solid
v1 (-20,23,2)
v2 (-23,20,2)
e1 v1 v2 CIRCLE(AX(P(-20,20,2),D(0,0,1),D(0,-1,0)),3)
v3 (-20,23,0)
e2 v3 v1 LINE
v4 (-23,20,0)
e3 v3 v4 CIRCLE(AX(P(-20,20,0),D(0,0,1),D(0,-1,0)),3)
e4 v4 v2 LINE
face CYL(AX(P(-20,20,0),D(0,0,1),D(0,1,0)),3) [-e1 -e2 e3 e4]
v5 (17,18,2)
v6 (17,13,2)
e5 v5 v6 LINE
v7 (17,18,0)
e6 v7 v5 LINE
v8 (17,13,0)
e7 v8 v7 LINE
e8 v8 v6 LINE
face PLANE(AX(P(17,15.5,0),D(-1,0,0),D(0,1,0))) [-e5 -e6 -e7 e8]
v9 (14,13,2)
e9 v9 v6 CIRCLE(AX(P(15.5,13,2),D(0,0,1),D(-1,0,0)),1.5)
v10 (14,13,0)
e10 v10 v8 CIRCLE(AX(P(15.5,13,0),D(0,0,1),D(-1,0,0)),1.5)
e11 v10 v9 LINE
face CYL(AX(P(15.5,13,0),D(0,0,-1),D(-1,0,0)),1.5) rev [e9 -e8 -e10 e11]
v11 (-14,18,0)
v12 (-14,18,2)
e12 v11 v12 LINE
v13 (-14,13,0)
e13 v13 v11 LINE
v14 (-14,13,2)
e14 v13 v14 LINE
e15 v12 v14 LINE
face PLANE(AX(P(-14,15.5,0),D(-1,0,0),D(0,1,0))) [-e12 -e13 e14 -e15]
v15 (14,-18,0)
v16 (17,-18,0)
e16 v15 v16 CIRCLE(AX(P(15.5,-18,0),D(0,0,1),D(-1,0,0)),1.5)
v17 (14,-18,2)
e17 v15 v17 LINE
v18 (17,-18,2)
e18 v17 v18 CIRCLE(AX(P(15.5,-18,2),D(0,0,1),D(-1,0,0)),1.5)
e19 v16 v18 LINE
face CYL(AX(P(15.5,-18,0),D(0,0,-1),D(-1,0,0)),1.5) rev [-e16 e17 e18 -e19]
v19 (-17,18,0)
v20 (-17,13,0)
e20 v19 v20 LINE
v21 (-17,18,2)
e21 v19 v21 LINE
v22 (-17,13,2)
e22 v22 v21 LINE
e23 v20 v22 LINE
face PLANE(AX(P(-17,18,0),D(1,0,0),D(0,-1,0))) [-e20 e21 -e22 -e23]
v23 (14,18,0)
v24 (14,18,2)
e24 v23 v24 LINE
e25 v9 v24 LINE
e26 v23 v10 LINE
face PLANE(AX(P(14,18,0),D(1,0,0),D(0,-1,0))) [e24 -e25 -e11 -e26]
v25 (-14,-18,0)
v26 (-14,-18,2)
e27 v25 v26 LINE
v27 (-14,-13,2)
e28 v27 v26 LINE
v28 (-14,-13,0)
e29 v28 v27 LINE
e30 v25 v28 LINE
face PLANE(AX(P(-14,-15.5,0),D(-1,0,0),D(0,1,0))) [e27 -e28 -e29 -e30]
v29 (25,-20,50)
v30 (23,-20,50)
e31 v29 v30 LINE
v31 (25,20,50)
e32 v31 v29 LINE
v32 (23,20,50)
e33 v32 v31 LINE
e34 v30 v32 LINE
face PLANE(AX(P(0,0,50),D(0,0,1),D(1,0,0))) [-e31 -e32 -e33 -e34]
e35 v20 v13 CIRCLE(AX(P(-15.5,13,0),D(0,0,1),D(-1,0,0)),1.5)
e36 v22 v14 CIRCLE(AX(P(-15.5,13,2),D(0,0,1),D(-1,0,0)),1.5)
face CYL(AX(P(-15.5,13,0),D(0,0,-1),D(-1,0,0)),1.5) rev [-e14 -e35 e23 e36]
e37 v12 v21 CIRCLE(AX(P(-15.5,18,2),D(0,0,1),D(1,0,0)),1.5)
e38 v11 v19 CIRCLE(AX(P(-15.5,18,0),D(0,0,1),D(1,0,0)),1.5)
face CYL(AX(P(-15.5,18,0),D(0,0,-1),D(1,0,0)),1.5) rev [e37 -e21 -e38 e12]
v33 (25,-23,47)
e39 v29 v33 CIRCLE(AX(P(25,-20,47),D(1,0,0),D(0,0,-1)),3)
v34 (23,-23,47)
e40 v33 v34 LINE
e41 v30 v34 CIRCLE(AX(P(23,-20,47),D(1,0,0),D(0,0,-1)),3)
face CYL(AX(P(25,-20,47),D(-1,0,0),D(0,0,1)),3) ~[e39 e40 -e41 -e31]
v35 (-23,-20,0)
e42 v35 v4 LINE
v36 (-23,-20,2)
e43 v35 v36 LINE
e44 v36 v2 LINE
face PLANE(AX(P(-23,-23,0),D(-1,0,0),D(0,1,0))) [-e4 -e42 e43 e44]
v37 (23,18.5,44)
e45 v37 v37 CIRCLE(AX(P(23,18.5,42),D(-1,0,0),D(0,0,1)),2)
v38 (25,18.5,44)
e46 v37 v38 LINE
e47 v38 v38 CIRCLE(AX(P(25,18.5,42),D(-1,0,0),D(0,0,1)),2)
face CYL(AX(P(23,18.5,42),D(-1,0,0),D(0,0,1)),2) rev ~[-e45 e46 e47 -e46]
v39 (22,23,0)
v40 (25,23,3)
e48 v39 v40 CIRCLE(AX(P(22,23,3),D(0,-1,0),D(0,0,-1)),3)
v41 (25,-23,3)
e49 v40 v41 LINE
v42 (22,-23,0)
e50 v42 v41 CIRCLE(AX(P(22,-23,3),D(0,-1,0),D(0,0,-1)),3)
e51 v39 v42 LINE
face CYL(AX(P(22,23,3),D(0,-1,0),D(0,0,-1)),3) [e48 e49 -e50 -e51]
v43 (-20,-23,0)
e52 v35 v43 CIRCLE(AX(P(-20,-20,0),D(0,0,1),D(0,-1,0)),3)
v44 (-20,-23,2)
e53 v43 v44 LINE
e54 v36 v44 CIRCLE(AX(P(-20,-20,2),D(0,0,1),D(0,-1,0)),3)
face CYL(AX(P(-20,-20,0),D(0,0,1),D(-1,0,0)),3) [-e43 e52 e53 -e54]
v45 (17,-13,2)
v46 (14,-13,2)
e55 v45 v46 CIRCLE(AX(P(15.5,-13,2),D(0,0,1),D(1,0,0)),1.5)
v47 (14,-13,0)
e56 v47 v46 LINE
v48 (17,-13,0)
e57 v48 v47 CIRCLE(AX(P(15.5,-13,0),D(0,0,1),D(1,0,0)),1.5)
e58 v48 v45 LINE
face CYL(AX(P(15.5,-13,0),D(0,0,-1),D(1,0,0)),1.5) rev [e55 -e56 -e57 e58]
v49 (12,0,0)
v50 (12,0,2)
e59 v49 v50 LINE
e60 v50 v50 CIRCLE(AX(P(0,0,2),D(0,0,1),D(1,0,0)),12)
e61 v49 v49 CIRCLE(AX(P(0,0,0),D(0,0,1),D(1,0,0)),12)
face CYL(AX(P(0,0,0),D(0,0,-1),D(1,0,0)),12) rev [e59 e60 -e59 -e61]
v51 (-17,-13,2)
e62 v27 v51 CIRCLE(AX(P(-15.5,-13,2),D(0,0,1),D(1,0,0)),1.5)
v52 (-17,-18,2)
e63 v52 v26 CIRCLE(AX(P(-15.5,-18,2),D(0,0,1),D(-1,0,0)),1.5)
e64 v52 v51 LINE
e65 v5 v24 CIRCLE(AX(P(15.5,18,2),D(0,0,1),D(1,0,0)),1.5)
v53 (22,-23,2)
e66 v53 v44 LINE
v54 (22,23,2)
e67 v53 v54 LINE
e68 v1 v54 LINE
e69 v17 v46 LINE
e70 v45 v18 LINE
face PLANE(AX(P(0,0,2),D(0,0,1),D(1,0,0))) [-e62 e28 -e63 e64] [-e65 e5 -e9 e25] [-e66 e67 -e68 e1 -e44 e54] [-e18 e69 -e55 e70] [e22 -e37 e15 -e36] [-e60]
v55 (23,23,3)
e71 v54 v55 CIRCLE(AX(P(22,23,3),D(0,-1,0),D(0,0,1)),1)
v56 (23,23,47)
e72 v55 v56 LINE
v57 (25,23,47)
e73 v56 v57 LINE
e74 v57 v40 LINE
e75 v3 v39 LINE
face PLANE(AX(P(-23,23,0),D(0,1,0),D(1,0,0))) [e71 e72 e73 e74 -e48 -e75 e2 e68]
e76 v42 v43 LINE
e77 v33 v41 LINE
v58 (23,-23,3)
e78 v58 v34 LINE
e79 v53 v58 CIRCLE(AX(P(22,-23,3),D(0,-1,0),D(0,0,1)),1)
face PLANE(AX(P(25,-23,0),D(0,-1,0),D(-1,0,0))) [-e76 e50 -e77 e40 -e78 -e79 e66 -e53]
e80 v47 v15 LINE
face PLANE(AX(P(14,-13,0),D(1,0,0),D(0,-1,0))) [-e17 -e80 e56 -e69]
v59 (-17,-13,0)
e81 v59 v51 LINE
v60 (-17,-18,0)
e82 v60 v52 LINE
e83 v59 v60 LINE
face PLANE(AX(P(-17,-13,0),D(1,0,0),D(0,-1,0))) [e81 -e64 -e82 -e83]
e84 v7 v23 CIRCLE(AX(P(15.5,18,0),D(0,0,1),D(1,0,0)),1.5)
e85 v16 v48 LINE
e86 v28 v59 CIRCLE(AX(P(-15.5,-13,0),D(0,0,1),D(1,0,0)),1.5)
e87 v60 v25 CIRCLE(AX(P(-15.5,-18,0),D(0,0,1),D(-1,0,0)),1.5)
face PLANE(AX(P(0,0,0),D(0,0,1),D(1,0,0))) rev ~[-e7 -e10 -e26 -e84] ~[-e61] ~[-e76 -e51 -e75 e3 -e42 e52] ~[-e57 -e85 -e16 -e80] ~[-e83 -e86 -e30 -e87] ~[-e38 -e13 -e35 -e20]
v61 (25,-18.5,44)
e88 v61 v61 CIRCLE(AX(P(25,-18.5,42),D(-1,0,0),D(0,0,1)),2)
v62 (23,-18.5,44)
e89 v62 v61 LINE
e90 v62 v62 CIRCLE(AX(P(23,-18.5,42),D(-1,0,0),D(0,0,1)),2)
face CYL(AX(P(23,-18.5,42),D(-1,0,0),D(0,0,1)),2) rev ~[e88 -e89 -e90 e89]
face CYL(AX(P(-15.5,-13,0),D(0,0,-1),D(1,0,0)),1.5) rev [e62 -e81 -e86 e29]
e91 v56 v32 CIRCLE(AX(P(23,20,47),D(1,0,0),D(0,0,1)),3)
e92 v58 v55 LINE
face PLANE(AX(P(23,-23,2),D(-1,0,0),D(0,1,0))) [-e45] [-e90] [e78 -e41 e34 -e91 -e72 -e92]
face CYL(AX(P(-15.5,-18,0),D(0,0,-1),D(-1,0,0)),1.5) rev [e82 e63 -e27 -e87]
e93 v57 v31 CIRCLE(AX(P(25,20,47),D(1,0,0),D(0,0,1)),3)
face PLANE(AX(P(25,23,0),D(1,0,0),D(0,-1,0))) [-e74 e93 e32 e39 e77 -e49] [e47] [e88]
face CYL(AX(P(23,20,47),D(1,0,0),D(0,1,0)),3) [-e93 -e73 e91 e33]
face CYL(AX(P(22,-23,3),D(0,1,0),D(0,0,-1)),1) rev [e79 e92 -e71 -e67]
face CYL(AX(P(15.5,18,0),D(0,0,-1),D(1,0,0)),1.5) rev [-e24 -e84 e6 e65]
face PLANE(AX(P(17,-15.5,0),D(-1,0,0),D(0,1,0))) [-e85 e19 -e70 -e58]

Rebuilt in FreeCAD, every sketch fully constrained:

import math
import FreeCAD as App
import Part
import Sketcher

V = App.Vector
Q = App.Units.Quantity


def edges_at(feature, points):
    """Names of the edges that pass closest to the given points."""
    edges = feature.Shape.Edges
    near = lambda p: min(range(len(edges)), key=lambda i: edges[i].distToShape(Part.Vertex(*p))[0])
    return sorted({f"Edge{near(p) + 1}" for p in points})


def add_polygon(sketch, points):
    """Adds a closed chain of lines whose ends are joined by coincident constraints."""
    first, n = sketch.GeometryCount, len(points)
    for a, b in zip(points, points[1:] + points[:1]):
        sketch.addGeometry(Part.LineSegment(App.Vector(*a, 0), App.Vector(*b, 0)), False)
    for i in range(n):
        sketch.addConstraint(Sketcher.Constraint("Coincident", first + i, 2, first + (i + 1) % n, 1))

doc = App.newDocument("Part")
body = doc.addObject("PartDesign::Body", "Body")

sketch1 = doc.addObject("Sketcher::SketchObject", "Sketch")
body.addObject(sketch1)
sketch1.AttachmentSupport = (doc.XY_Plane, [""])
sketch1.MapMode = "FlatFace"
add_polygon(sketch1, [(25, 23), (-23, 23), (-23, -23), (25, -23)])
sketch1.addGeometry(Part.LineSegment(V(-14, -13, 0), V(-14, -18, 0)), False)
sketch1.addGeometry(Part.ArcOfCircle(Part.Circle(V(-15.5, -18, 0), V(0, 0, 1), 1.5), math.radians(180), math.radians(360)), False)
sketch1.addGeometry(Part.LineSegment(V(-17, -18, 0), V(-17, -13, 0)), False)
sketch1.addGeometry(Part.ArcOfCircle(Part.Circle(V(-15.5, -13, 0), V(0, 0, 1), 1.5), math.radians(0), math.radians(180)), False)
sketch1.addGeometry(Part.LineSegment(V(17, -13, 0), V(17, -18, 0)), False)
sketch1.addGeometry(Part.ArcOfCircle(Part.Circle(V(15.5, -18, 0), V(0, 0, 1), 1.5), math.radians(180), math.radians(360)), False)
sketch1.addGeometry(Part.LineSegment(V(14, -18, 0), V(14, -13, 0)), False)
sketch1.addGeometry(Part.ArcOfCircle(Part.Circle(V(15.5, -13, 0), V(0, 0, 1), 1.5), math.radians(0), math.radians(180)), False)
sketch1.addGeometry(Part.Circle(V(0, 0, 0), V(0, 0, 1), 12), False)
sketch1.addGeometry(Part.LineSegment(V(-14, 18, 0), V(-14, 13, 0)), False)
sketch1.addGeometry(Part.ArcOfCircle(Part.Circle(V(-15.5, 13, 0), V(0, 0, 1), 1.5), math.radians(180), math.radians(360)), False)
sketch1.addGeometry(Part.LineSegment(V(-17, 13, 0), V(-17, 18, 0)), False)
sketch1.addGeometry(Part.ArcOfCircle(Part.Circle(V(-15.5, 18, 0), V(0, 0, 1), 1.5), math.radians(0), math.radians(180)), False)
sketch1.addGeometry(Part.LineSegment(V(17, 18, 0), V(17, 13, 0)), False)
sketch1.addGeometry(Part.ArcOfCircle(Part.Circle(V(15.5, 13, 0), V(0, 0, 1), 1.5), math.radians(180), math.radians(360)), False)
sketch1.addGeometry(Part.LineSegment(V(14, 13, 0), V(14, 18, 0)), False)
sketch1.addGeometry(Part.ArcOfCircle(Part.Circle(V(15.5, 18, 0), V(0, 0, 1), 1.5), math.radians(0), math.radians(180)), False)
sketch1.addConstraint([
    Sketcher.Constraint("Tangent", 4, 2, 5, 2),
    Sketcher.Constraint("Tangent", 5, 1, 6, 1),
    Sketcher.Constraint("Tangent", 6, 2, 7, 2),
    Sketcher.Constraint("Tangent", 7, 1, 4, 1),
    Sketcher.Constraint("Tangent", 8, 2, 9, 2),
    Sketcher.Constraint("Tangent", 9, 1, 10, 1),
    Sketcher.Constraint("Tangent", 10, 2, 11, 2),
    Sketcher.Constraint("Tangent", 11, 1, 8, 1),
    Sketcher.Constraint("Tangent", 13, 2, 14, 2),
    Sketcher.Constraint("Tangent", 14, 1, 15, 1),
    Sketcher.Constraint("Tangent", 15, 2, 16, 2),
    Sketcher.Constraint("Tangent", 16, 1, 13, 1),
    Sketcher.Constraint("Tangent", 17, 2, 18, 2),
    Sketcher.Constraint("Tangent", 18, 1, 19, 1),
    Sketcher.Constraint("Tangent", 19, 2, 20, 2),
    Sketcher.Constraint("Tangent", 20, 1, 17, 1),
    Sketcher.Constraint("Horizontal", 0),
    Sketcher.Constraint("Vertical", 1),
    Sketcher.Constraint("Horizontal", 2),
    Sketcher.Constraint("Vertical", 3),
    Sketcher.Constraint("Vertical", 4),
    Sketcher.Constraint("Vertical", 6),
    Sketcher.Constraint("Vertical", 8),
    Sketcher.Constraint("Vertical", 10),
    Sketcher.Constraint("Vertical", 13),
    Sketcher.Constraint("Vertical", 15),
    Sketcher.Constraint("Vertical", 17),
    Sketcher.Constraint("Vertical", 19),
    Sketcher.Constraint("Coincident", 12, 3, -1, 1),
    Sketcher.Constraint("Equal", 7, 9),
    Sketcher.Constraint("Equal", 11, 14),
    Sketcher.Constraint("Equal", 16, 18),
    Sketcher.Constraint("Symmetric", 11, 3, 14, 3, -1, 1),
    Sketcher.Constraint("Symmetric", 7, 3, 18, 3, -1, 1),
    Sketcher.Constraint("Symmetric", 5, 3, 9, 3, -2),
    Sketcher.Constraint("Horizontal", 7, 3, 11, 3),
    Sketcher.Constraint("Horizontal", 16, 3, 20, 3),
    Sketcher.Constraint("Equal", 10, 13),
    Sketcher.Constraint("Diameter", 12, Q("24 mm")),
    Sketcher.Constraint("Radius", 5, Q("1.5 mm")),
    Sketcher.Constraint("DistanceX", 0, 2, 0, 1, Q("48 mm")),
    Sketcher.Constraint("DistanceY", 1, 2, 1, 1, Q("46 mm")),
    Sketcher.Constraint("DistanceX", 0, 2, -1, 1, Q("23 mm")),
    Sketcher.Constraint("DistanceY", -1, 1, 0, 2, Q("23 mm")),
    Sketcher.Constraint("DistanceX", 5, 3, 9, 3, Q("31 mm")),
    Sketcher.Constraint("DistanceY", 5, 3, 14, 3, Q("31 mm")),
    Sketcher.Constraint("DistanceY", 4, 2, 4, 1, Q("5 mm")),
])
pad1 = doc.addObject("PartDesign::Pad", "Pad")
body.addObject(pad1)
pad1.Profile = sketch1
pad1.Length = 2

sketch2 = doc.addObject("Sketcher::SketchObject", "Sketch001")
body.addObject(sketch2)
sketch2.AttachmentSupport = (doc.XY_Plane, [""])
sketch2.MapMode = "FlatFace"
sketch2.AttachmentOffset = App.Placement(V(0, 0, 2), App.Rotation())
add_polygon(sketch2, [(23, -23), (25, -23), (25, 23), (23, 23)])
sketch2.addConstraint([
    Sketcher.Constraint("Horizontal", 0),
    Sketcher.Constraint("Vertical", 1),
    Sketcher.Constraint("Horizontal", 2),
    Sketcher.Constraint("Vertical", 3),
    Sketcher.Constraint("DistanceX", 0, 1, 0, 2, Q("2 mm")),
    Sketcher.Constraint("DistanceY", 1, 1, 1, 2, Q("46 mm")),
    Sketcher.Constraint("DistanceX", -1, 1, 0, 2, Q("25 mm")),
    Sketcher.Constraint("DistanceY", 0, 2, -1, 1, Q("23 mm")),
])
pad2 = doc.addObject("PartDesign::Pad", "Pad001")
body.addObject(pad2)
pad2.Profile = sketch2
pad2.Length = 48

sketch3 = doc.addObject("Sketcher::SketchObject", "Sketch002")
body.addObject(sketch3)
sketch3.AttachmentSupport = (doc.YZ_Plane, [""])
sketch3.MapMode = "FlatFace"
sketch3.AttachmentOffset = App.Placement(V(0, 0, 23), App.Rotation())
sketch3.addGeometry([
    Part.Circle(V(18.5, 42, 0), V(0, 0, 1), 2),
    Part.Circle(V(-18.5, 42, 0), V(0, 0, 1), 2),
], False)
sketch3.addConstraint([
    Sketcher.Constraint("Equal", 0, 1),
    Sketcher.Constraint("Symmetric", 0, 3, 1, 3, -2),
    Sketcher.Constraint("Diameter", 0, Q("4 mm")),
    Sketcher.Constraint("DistanceX", 1, 3, 0, 3, Q("37 mm")),
    Sketcher.Constraint("DistanceY", -1, 1, 0, 3, Q("42 mm")),
])
pocket1 = doc.addObject("PartDesign::Pocket", "Pocket")
body.addObject(pocket1)
pocket1.Profile = sketch3
pocket1.Length = 10
pocket1.Reversed = True
doc.recompute()

fillet = doc.addObject("PartDesign::Fillet", "Fillet")
body.addObject(fillet)
fillet.Base = (pocket1, edges_at(pocket1, [(23, 0, 2)]))
fillet.Radius = 1
doc.recompute()

fillet2 = doc.addObject("PartDesign::Fillet", "Fillet001")
body.addObject(fillet2)
fillet2.Base = (fillet, edges_at(fillet, [(25, 0, 0)]))
fillet2.Radius = 3
doc.recompute()

fillet3 = doc.addObject("PartDesign::Fillet", "Fillet002")
body.addObject(fillet3)
fillet3.Base = (fillet2, edges_at(fillet2, [
    (-23, -23, 1),
    (-23, 23, 1),
    (24, 23, 50),
    (24, -23, 50),
]))
fillet3.Radius = 3

doc.recompute()
